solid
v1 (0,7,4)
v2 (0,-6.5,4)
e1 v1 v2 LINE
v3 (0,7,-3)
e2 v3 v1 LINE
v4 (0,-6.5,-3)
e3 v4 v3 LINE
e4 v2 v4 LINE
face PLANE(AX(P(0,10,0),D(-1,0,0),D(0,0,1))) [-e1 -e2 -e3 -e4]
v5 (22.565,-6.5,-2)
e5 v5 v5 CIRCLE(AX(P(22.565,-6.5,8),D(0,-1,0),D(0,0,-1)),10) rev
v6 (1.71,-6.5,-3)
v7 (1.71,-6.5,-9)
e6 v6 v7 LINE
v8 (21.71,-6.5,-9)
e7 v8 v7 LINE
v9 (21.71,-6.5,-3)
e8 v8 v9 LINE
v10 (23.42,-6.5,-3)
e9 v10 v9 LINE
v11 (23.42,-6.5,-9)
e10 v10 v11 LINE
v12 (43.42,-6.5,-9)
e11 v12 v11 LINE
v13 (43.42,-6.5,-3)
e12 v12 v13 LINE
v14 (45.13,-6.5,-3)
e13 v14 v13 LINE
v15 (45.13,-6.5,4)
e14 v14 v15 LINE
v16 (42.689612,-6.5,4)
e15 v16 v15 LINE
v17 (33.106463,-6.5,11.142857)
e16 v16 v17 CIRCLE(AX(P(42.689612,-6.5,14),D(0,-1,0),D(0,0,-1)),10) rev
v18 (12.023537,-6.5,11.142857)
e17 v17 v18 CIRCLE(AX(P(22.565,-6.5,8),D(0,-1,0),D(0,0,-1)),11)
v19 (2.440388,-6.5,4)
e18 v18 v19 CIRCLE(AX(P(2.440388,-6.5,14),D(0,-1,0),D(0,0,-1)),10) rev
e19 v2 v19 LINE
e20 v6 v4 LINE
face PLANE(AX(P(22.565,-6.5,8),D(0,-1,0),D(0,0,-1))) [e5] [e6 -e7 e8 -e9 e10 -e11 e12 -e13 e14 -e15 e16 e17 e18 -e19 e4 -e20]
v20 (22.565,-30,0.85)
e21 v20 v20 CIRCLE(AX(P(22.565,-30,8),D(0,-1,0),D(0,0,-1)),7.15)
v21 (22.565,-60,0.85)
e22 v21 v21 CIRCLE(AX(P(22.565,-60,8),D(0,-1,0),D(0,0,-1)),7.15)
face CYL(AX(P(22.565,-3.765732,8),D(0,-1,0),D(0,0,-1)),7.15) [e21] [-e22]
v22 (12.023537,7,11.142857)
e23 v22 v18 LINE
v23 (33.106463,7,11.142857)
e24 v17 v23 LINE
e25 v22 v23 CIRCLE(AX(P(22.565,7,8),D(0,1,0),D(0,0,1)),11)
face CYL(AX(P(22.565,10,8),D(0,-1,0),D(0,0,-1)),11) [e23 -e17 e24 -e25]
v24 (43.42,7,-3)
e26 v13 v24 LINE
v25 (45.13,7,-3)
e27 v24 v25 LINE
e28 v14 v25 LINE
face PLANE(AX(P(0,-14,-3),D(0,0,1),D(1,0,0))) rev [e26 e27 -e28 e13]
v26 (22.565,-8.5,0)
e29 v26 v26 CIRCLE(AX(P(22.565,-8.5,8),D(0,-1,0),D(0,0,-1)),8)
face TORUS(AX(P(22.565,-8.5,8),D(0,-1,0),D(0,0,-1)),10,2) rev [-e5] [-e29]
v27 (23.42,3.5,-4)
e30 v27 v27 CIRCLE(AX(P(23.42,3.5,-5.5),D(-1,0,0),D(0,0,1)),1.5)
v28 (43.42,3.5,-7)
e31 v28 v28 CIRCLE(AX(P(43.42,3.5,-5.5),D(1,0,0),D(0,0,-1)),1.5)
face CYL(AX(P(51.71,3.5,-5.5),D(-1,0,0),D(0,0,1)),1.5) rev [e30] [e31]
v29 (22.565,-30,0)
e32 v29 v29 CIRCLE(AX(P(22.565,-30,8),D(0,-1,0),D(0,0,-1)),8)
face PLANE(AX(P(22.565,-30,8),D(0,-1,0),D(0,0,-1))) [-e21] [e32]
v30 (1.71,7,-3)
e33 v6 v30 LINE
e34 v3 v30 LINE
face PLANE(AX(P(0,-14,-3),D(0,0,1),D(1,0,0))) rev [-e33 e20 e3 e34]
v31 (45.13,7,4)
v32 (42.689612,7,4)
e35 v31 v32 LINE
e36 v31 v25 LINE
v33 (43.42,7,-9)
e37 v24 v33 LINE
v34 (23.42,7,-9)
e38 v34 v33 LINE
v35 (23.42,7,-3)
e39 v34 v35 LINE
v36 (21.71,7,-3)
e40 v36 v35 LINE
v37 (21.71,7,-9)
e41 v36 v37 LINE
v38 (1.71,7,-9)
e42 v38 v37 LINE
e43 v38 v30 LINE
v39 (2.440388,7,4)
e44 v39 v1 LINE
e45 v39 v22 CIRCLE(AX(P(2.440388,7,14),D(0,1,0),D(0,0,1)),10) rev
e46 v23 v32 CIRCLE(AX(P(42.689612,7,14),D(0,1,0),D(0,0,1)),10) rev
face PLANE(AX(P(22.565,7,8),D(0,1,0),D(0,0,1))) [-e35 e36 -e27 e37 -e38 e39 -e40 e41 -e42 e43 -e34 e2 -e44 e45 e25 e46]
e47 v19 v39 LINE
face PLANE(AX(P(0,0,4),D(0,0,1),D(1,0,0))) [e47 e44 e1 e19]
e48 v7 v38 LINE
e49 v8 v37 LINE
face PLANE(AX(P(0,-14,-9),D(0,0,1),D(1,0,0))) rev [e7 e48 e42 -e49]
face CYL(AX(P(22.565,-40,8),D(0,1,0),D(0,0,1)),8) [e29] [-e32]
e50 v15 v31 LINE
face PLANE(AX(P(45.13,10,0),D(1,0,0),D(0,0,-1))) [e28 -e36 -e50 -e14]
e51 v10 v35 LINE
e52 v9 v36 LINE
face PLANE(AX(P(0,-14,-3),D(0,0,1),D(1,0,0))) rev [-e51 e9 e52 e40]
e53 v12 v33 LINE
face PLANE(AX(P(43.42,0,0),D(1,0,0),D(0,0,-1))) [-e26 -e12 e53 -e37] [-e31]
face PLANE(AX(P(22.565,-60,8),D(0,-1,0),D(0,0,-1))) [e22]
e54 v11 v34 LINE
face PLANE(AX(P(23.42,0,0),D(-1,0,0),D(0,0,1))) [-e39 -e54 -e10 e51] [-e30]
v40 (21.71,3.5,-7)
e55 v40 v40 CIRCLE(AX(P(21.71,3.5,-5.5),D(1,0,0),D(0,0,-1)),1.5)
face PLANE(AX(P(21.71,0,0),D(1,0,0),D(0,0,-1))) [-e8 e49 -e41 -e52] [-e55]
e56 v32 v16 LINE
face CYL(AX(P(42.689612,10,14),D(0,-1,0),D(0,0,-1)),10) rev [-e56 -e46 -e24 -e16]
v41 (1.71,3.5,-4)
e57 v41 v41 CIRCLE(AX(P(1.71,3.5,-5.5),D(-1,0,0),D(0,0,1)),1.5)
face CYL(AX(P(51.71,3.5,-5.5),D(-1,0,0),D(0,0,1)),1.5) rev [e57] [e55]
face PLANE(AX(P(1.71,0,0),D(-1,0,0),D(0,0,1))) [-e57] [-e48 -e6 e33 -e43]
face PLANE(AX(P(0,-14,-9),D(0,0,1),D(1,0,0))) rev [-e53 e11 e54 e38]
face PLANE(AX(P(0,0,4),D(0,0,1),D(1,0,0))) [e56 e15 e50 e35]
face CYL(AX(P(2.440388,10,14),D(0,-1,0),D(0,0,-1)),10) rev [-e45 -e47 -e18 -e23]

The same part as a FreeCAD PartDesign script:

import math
import FreeCAD as App
import Part
import Sketcher

V = App.Vector


def edges_at(feature, points):
    """Names of the edges that pass closest to the given points."""
    edges = feature.Shape.Edges
    near = lambda p: min(range(len(edges)), key=lambda i: edges[i].distToShape(Part.Vertex(*p))[0])
    return sorted({f"Edge{near(p) + 1}" for p in points})

doc = App.newDocument("Part")
body = doc.addObject("PartDesign::Body", "Body")

sketch1 = body.newObject("Sketcher::SketchObject", "Sketch")
sketch1.AttachmentSupport = (doc.getObject("XZ_Plane"), [""])
sketch1.MapMode = "FlatFace"
sketch1.addGeometry([
    Part.ArcOfCircle(Part.Circle(V(22.565, 8, 0), V(0, 0, 1), 11), math.radians(-46.658242), math.radians(226.658242)),
    Part.LineSegment(V(30.114834, 0, 0), V(45.13, 0, 0)),
    Part.LineSegment(V(45.13, 0, 0), V(45.13, -7, 0)),
    Part.LineSegment(V(45.13, -7, 0), V(0, -7, 0)),
    Part.LineSegment(V(0, -7, 0), V(0, 0, 0)),
    Part.LineSegment(V(0, 0, 0), V(15.015166, 0, 0)),
    Part.Circle(V(22.565, 8, 0), V(0, 0, 1), 8),
], False)
sketch1.addConstraint([
    Sketcher.Constraint("Coincident", 0, 1, 1, 1),
    Sketcher.Constraint("Coincident", 1, 2, 2, 1),
    Sketcher.Constraint("Coincident", 2, 2, 3, 1),
    Sketcher.Constraint("Coincident", 3, 2, 4, 1),
    Sketcher.Constraint("Coincident", 4, 2, 5, 1),
    Sketcher.Constraint("Coincident", 5, 2, 0, 2),
    Sketcher.Constraint("Horizontal", 1),
    Sketcher.Constraint("Vertical", 2),
    Sketcher.Constraint("Horizontal", 3),
    Sketcher.Constraint("Vertical", 4),
    Sketcher.Constraint("Horizontal", 5),
    Sketcher.Constraint("Coincident", 4, 2, -1, 1),
    Sketcher.Constraint("Coincident", 6, 3, 0, 3),
    Sketcher.Constraint("PointOnObject", 0, 1, -1),
    Sketcher.Constraint("Equal", 1, 5),
    Sketcher.Constraint("Diameter", 6, 16.0),
    Sketcher.Constraint("Radius", 0, 11.0),
    Sketcher.Constraint("DistanceY", 2, 2, 2, 1, 7.0),
    Sketcher.Constraint("DistanceY", -1, 1, 0, 3, 8.0),
    Sketcher.Constraint("DistanceX", 3, 2, 3, 1, 45.13),
])
pad1 = body.newObject("PartDesign::Pad", "Pad")
pad1.Profile = sketch1
pad1.Length = 10
pad1.Reversed = True

sketch2 = body.newObject("Sketcher::SketchObject", "Sketch001")
sketch2.AttachmentSupport = (doc.getObject("XZ_Plane"), [""])
sketch2.MapMode = "FlatFace"
sketch2.AttachmentOffset = App.Placement(V(0, 0, -10), App.Rotation())
sketch2.addGeometry([
    Part.LineSegment(V(0, -7, 0), V(0, -3, 0)),
    Part.LineSegment(V(0, -3, 0), V(1.71, -3, 0)),
    Part.LineSegment(V(1.71, -3, 0), V(1.71, -7, 0)),
    Part.LineSegment(V(1.71, -7, 0), V(0, -7, 0)),
    Part.LineSegment(V(21.71, -7, 0), V(21.71, -3, 0)),
    Part.LineSegment(V(21.71, -3, 0), V(23.42, -3, 0)),
    Part.LineSegment(V(23.42, -3, 0), V(23.42, -7, 0)),
    Part.LineSegment(V(23.42, -7, 0), V(21.71, -7, 0)),
    Part.LineSegment(V(43.42, -7, 0), V(43.42, -3, 0)),
    Part.LineSegment(V(43.42, -3, 0), V(45.13, -3, 0)),
    Part.LineSegment(V(45.13, -3, 0), V(45.13, -7, 0)),
    Part.LineSegment(V(45.13, -7, 0), V(43.42, -7, 0)),
], False)
sketch2.addConstraint([
    Sketcher.Constraint("Coincident", 0, 2, 1, 1),
    Sketcher.Constraint("Coincident", 1, 2, 2, 1),
    Sketcher.Constraint("Coincident", 2, 2, 3, 1),
    Sketcher.Constraint("Coincident", 3, 2, 0, 1),
    Sketcher.Constraint("Coincident", 4, 2, 5, 1),
    Sketcher.Constraint("Coincident", 5, 2, 6, 1),
    Sketcher.Constraint("Coincident", 6, 2, 7, 1),
    Sketcher.Constraint("Coincident", 7, 2, 4, 1),
    Sketcher.Constraint("Coincident", 8, 2, 9, 1),
    Sketcher.Constraint("Coincident", 9, 2, 10, 1),
    Sketcher.Constraint("Coincident", 10, 2, 11, 1),
    Sketcher.Constraint("Coincident", 11, 2, 8, 1),
    Sketcher.Constraint("Vertical", 0),
    Sketcher.Constraint("Horizontal", 1),
    Sketcher.Constraint("Vertical", 2),
    Sketcher.Constraint("Horizontal", 3),
    Sketcher.Constraint("Vertical", 4),
    Sketcher.Constraint("Horizontal", 5),
    Sketcher.Constraint("Vertical", 6),
    Sketcher.Constraint("Horizontal", 7),
    Sketcher.Constraint("Vertical", 8),
    Sketcher.Constraint("Horizontal", 9),
    Sketcher.Constraint("Vertical", 10),
    Sketcher.Constraint("Horizontal", 11),
    Sketcher.Constraint("PointOnObject", 0, 2, -2),
    Sketcher.Constraint("Horizontal", 1, 2, 4, 2),
    Sketcher.Constraint("Horizontal", 3, 2, 6, 2),
    Sketcher.Constraint("Horizontal", 5, 2, 8, 2),
    Sketcher.Constraint("Horizontal", 7, 2, 10, 2),
    Sketcher.Constraint("Equal", 3, 5),
    Sketcher.Constraint("Equal", 7, 9),
    Sketcher.Constraint("DistanceY", 0, 1, 0, 2, 4.0),
    Sketcher.Constraint("DistanceY", 0, 2, -1, 1, 3.0),
    Sketcher.Constraint("DistanceX", 1, 2, 4, 2, 20.0),
    Sketcher.Constraint("DistanceX", 5, 2, 8, 2, 20.0),
    Sketcher.Constraint("DistanceX", 1, 1, 1, 2, 1.71),
])
pocket1 = body.newObject("PartDesign::Pocket", "Pocket")
pocket1.Profile = sketch2
pocket1.Length = 10
pocket1.Reversed = True

sketch3 = body.newObject("Sketcher::SketchObject", "Sketch002")
sketch3.AttachmentSupport = (doc.getObject("XY_Plane"), [""])
sketch3.MapMode = "FlatFace"
sketch3.AttachmentOffset = App.Placement(V(0, 0, -7), App.Rotation())
sketch3.addGeometry([
    Part.LineSegment(V(43.42, 10, 0), V(43.42, 0, 0)),
    Part.LineSegment(V(43.42, 0, 0), V(23.42, 0, 0)),
    Part.LineSegment(V(23.42, 0, 0), V(23.42, 10, 0)),
    Part.LineSegment(V(23.42, 10, 0), V(43.42, 10, 0)),
    Part.LineSegment(V(21.71, 10, 0), V(21.71, 0, 0)),
    Part.LineSegment(V(21.71, 0, 0), V(1.71, 0, 0)),
    Part.LineSegment(V(1.71, 0, 0), V(1.71, 10, 0)),
    Part.LineSegment(V(1.71, 10, 0), V(21.71, 10, 0)),
], False)
sketch3.addConstraint([
    Sketcher.Constraint("Coincident", 0, 2, 1, 1),
    Sketcher.Constraint("Coincident", 1, 2, 2, 1),
    Sketcher.Constraint("Coincident", 2, 2, 3, 1),
    Sketcher.Constraint("Coincident", 3, 2, 0, 1),
    Sketcher.Constraint("Coincident", 4, 2, 5, 1),
    Sketcher.Constraint("Coincident", 5, 2, 6, 1),
    Sketcher.Constraint("Coincident", 6, 2, 7, 1),
    Sketcher.Constraint("Coincident", 7, 2, 4, 1),
    Sketcher.Constraint("Vertical", 0),
    Sketcher.Constraint("Horizontal", 1),
    Sketcher.Constraint("Vertical", 2),
    Sketcher.Constraint("Horizontal", 3),
    Sketcher.Constraint("Vertical", 4),
    Sketcher.Constraint("Horizontal", 5),
    Sketcher.Constraint("Vertical", 6),
    Sketcher.Constraint("Horizontal", 7),
    Sketcher.Constraint("PointOnObject", 0, 2, -1),
    Sketcher.Constraint("PointOnObject", 4, 2, -1),
    Sketcher.Constraint("Horizontal", 3, 2, 6, 2),
    Sketcher.Constraint("Equal", 3, 5),
    Sketcher.Constraint("DistanceX", 1, 2, 1, 1, 20.0),
    Sketcher.Constraint("DistanceY", 0, 2, 0, 1, 10.0),
    Sketcher.Constraint("DistanceX", -1, 1, 0, 2, 43.42),
    Sketcher.Constraint("DistanceX", -1, 1, 4, 2, 21.71),
])
pad2 = body.newObject("PartDesign::Pad", "Pad001")
pad2.Profile = sketch3
pad2.Length = 3
pad2.Reversed = True

sketch4 = body.newObject("Sketcher::SketchObject", "Sketch003")
sketch4.AttachmentSupport = (doc.getObject("XZ_Plane"), [""])
sketch4.MapMode = "FlatFace"
sketch4.AttachmentOffset = App.Placement(V(0, 0, -7), App.Rotation())
sketch4.addGeometry([
    Part.LineSegment(V(21.71, -3, 0), V(21.71, -10, 0)),
    Part.LineSegment(V(21.71, -10, 0), V(1.71, -10, 0)),
    Part.LineSegment(V(1.71, -10, 0), V(1.71, -3, 0)),
    Part.LineSegment(V(1.71, -3, 0), V(0, -3, 0)),
    Part.LineSegment(V(0, -3, 0), V(0, 0, 0)),
    Part.LineSegment(V(0, 0, 0), V(15.015166, 0, 0)),
    Part.ArcOfCircle(Part.Circle(V(22.565, 8, 0), V(0, 0, 1), 11), math.radians(-46.658242), math.radians(226.658242)),
    Part.LineSegment(V(30.114834, 0, 0), V(45.13, 0, 0)),
    Part.LineSegment(V(45.13, 0, 0), V(45.13, -3, 0)),
    Part.LineSegment(V(45.13, -3, 0), V(43.42, -3, 0)),
    Part.LineSegment(V(43.42, -3, 0), V(43.42, -10, 0)),
    Part.LineSegment(V(43.42, -10, 0), V(23.42, -10, 0)),
    Part.LineSegment(V(23.42, -10, 0), V(23.42, -3, 0)),
    Part.LineSegment(V(23.42, -3, 0), V(21.71, -3, 0)),
], False)
sketch4.addConstraint([
    Sketcher.Constraint("Coincident", 0, 2, 1, 1),
    Sketcher.Constraint("Coincident", 1, 2, 2, 1),
    Sketcher.Constraint("Coincident", 2, 2, 3, 1),
    Sketcher.Constraint("Coincident", 3, 2, 4, 1),
    Sketcher.Constraint("Coincident", 4, 2, 5, 1),
    Sketcher.Constraint("Coincident", 5, 2, 6, 2),
    Sketcher.Constraint("Coincident", 6, 1, 7, 1),
    Sketcher.Constraint("Coincident", 7, 2, 8, 1),
    Sketcher.Constraint("Coincident", 8, 2, 9, 1),
    Sketcher.Constraint("Coincident", 9, 2, 10, 1),
    Sketcher.Constraint("Coincident", 10, 2, 11, 1),
    Sketcher.Constraint("Coincident", 11, 2, 12, 1),
    Sketcher.Constraint("Coincident", 12, 2, 13, 1),
    Sketcher.Constraint("Coincident", 13, 2, 0, 1),
    Sketcher.Constraint("Vertical", 0),
    Sketcher.Constraint("Horizontal", 1),
    Sketcher.Constraint("Vertical", 2),
    Sketcher.Constraint("Horizontal", 3),
    Sketcher.Constraint("Vertical", 4),
    Sketcher.Constraint("Horizontal", 5),
    Sketcher.Constraint("Horizontal", 7),
    Sketcher.Constraint("Vertical", 8),
    Sketcher.Constraint("Horizontal", 9),
    Sketcher.Constraint("Vertical", 10),
    Sketcher.Constraint("Horizontal", 11),
    Sketcher.Constraint("Vertical", 12),
    Sketcher.Constraint("Horizontal", 13),
    Sketcher.Constraint("Coincident", 4, 2, -1, 1),
    Sketcher.Constraint("PointOnObject", 6, 1, -1),
    Sketcher.Constraint("Horizontal", 3, 2, 8, 2),
    Sketcher.Constraint("Horizontal", 1, 2, 10, 2),
    Sketcher.Constraint("Horizontal", 9, 2, 12, 2),
    Sketcher.Constraint("Equal", 5, 7),
    Sketcher.Constraint("Equal", 3, 9),
    Sketcher.Constraint("Equal", 1, 11),
    Sketcher.Constraint("Equal", 9, 13),
    Sketcher.Constraint("Radius", 6, 11.0),
    Sketcher.Constraint("DistanceX", 1, 2, 1, 1, 20.0),
    Sketcher.Constraint("DistanceY", 0, 2, 0, 1, 7.0),
    Sketcher.Constraint("DistanceY", 4, 1, 4, 2, 3.0),
    Sketcher.Constraint("DistanceY", -1, 1, 6, 3, 8.0),
    Sketcher.Constraint("DistanceX", 3, 2, 3, 1, 1.71),
])
pocket2 = body.newObject("PartDesign::Pocket", "Pocket001")
pocket2.Profile = sketch4
pocket2.Length = 3

sketch5 = body.newObject("Sketcher::SketchObject", "Sketch004")
sketch5.AttachmentSupport = (doc.getObject("XY_Plane"), [""])
sketch5.MapMode = "FlatFace"
sketch5.AttachmentOffset = App.Placement(V(0, 0, -10), App.Rotation())
sketch5.addGeometry([
    Part.LineSegment(V(43.42, 7, 0), V(43.42, 0, 0)),
    Part.LineSegment(V(43.42, 0, 0), V(23.42, 0, 0)),
    Part.LineSegment(V(23.42, 0, 0), V(23.42, 7, 0)),
    Part.LineSegment(V(23.42, 7, 0), V(43.42, 7, 0)),
    Part.LineSegment(V(21.71, 7, 0), V(21.71, 0, 0)),
    Part.LineSegment(V(21.71, 0, 0), V(1.71, 0, 0)),
    Part.LineSegment(V(1.71, 0, 0), V(1.71, 7, 0)),
    Part.LineSegment(V(1.71, 7, 0), V(21.71, 7, 0)),
], False)
sketch5.addConstraint([
    Sketcher.Constraint("Coincident", 0, 2, 1, 1),
    Sketcher.Constraint("Coincident", 1, 2, 2, 1),
    Sketcher.Constraint("Coincident", 2, 2, 3, 1),
    Sketcher.Constraint("Coincident", 3, 2, 0, 1),
    Sketcher.Constraint("Coincident", 4, 2, 5, 1),
    Sketcher.Constraint("Coincident", 5, 2, 6, 1),
    Sketcher.Constraint("Coincident", 6, 2, 7, 1),
    Sketcher.Constraint("Coincident", 7, 2, 4, 1),
    Sketcher.Constraint("Vertical", 0),
    Sketcher.Constraint("Horizontal", 1),
    Sketcher.Constraint("Vertical", 2),
    Sketcher.Constraint("Horizontal", 3),
    Sketcher.Constraint("Vertical", 4),
    Sketcher.Constraint("Horizontal", 5),
    Sketcher.Constraint("Vertical", 6),
    Sketcher.Constraint("Horizontal", 7),
    Sketcher.Constraint("PointOnObject", 0, 2, -1),
    Sketcher.Constraint("PointOnObject", 4, 2, -1),
    Sketcher.Constraint("Horizontal", 3, 2, 6, 2),
    Sketcher.Constraint("Equal", 3, 5),
    Sketcher.Constraint("DistanceX", 1, 2, 1, 1, 20.0),
    Sketcher.Constraint("DistanceY", 0, 2, 0, 1, 7.0),
    Sketcher.Constraint("DistanceX", -1, 1, 0, 2, 43.42),
    Sketcher.Constraint("DistanceX", -1, 1, 4, 2, 21.71),
])
pad3 = body.newObject("PartDesign::Pad", "Pad002")
pad3.Profile = sketch5
pad3.Length = 2
pad3.Reversed = True

sketch6 = body.newObject("Sketcher::SketchObject", "Sketch005")
sketch6.AttachmentSupport = (doc.getObject("YZ_Plane"), [""])
sketch6.MapMode = "FlatFace"
sketch6.AttachmentOffset = App.Placement(V(0, 0, 1.71), App.Rotation())
sketch6.addGeometry(Part.Circle(V(3.5, -8.5, 0), V(0, 0, 1), 1.5), False)
sketch6.addConstraint([
    Sketcher.Constraint("Diameter", 0, 3.0),
    Sketcher.Constraint("DistanceX", -1, 1, 0, 3, 3.5),
    Sketcher.Constraint("DistanceY", 0, 3, -1, 1, 8.5),
])
pocket3 = body.newObject("PartDesign::Pocket", "Pocket002")
pocket3.Profile = sketch6
pocket3.Length = 44
pocket3.Reversed = True

sketch7 = body.newObject("Sketcher::SketchObject", "Sketch006")
sketch7.AttachmentSupport = (doc.getObject("XY_Plane"), [""])
sketch7.MapMode = "FlatFace"
sketch7.AttachmentOffset = App.Placement(V(0, 0, -3), App.Rotation())
sketch7.addGeometry([
    Part.LineSegment(V(23.42, 7, 0), V(23.42, 0, 0)),
    Part.LineSegment(V(23.42, 0, 0), V(21.71, 0, 0)),
    Part.LineSegment(V(21.71, 0, 0), V(21.71, 7, 0)),
    Part.LineSegment(V(21.71, 7, 0), V(23.42, 7, 0)),
    Part.LineSegment(V(1.71, 7, 0), V(1.71, 0, 0)),
    Part.LineSegment(V(1.71, 0, 0), V(0, 0, 0)),
    Part.LineSegment(V(0, 0, 0), V(0, 7, 0)),
    Part.LineSegment(V(0, 7, 0), V(1.71, 7, 0)),
    Part.LineSegment(V(45.13, 7, 0), V(45.13, 0, 0)),
    Part.LineSegment(V(45.13, 0, 0), V(43.42, 0, 0)),
    Part.LineSegment(V(43.42, 0, 0), V(43.42, 7, 0)),
    Part.LineSegment(V(43.42, 7, 0), V(45.13, 7, 0)),
], False)
sketch7.addConstraint([
    Sketcher.Constraint("Coincident", 0, 2, 1, 1),
    Sketcher.Constraint("Coincident", 1, 2, 2, 1),
    Sketcher.Constraint("Coincident", 2, 2, 3, 1),
    Sketcher.Constraint("Coincident", 3, 2, 0, 1),
    Sketcher.Constraint("Coincident", 4, 2, 5, 1),
    Sketcher.Constraint("Coincident", 5, 2, 6, 1),
    Sketcher.Constraint("Coincident", 6, 2, 7, 1),
    Sketcher.Constraint("Coincident", 7, 2, 4, 1),
    Sketcher.Constraint("Coincident", 8, 2, 9, 1),
    Sketcher.Constraint("Coincident", 9, 2, 10, 1),
    Sketcher.Constraint("Coincident", 10, 2, 11, 1),
    Sketcher.Constraint("Coincident", 11, 2, 8, 1),
    Sketcher.Constraint("Vertical", 0),
    Sketcher.Constraint("Horizontal", 1),
    Sketcher.Constraint("Vertical", 2),
    Sketcher.Constraint("Horizontal", 3),
    Sketcher.Constraint("Vertical", 4),
    Sketcher.Constraint("Horizontal", 5),
    Sketcher.Constraint("Vertical", 6),
    Sketcher.Constraint("Horizontal", 7),
    Sketcher.Constraint("Vertical", 8),
    Sketcher.Constraint("Horizontal", 9),
    Sketcher.Constraint("Vertical", 10),
    Sketcher.Constraint("Horizontal", 11),
    Sketcher.Constraint("Coincident", 5, 2, -1, 1),
    Sketcher.Constraint("PointOnObject", 0, 2, -1),
    Sketcher.Constraint("PointOnObject", 8, 2, -1),
    Sketcher.Constraint("Horizontal", 3, 2, 6, 2),
    Sketcher.Constraint("Horizontal", 7, 2, 10, 2),
    Sketcher.Constraint("Equal", 3, 5),
    Sketcher.Constraint("Equal", 7, 9),
    Sketcher.Constraint("DistanceY", 0, 2, 0, 1, 7.0),
    Sketcher.Constraint("DistanceX", 4, 2, 1, 2, 20.0),
    Sketcher.Constraint("DistanceX", 0, 2, 9, 2, 20.0),
    Sketcher.Constraint("DistanceX", 1, 2, 1, 1, 1.71),
])
pad4 = body.newObject("PartDesign::Pad", "Pad003")
pad4.Profile = sketch7
pad4.Length = 3
pad4.Reversed = True

sketch8 = body.newObject("Sketcher::SketchObject", "Sketch007")
sketch8.AttachmentSupport = (doc.getObject("XZ_Plane"), [""])
sketch8.MapMode = "FlatFace"
sketch8.AttachmentOffset = App.Placement(V(0, 0, -6), App.Rotation())
sketch8.addGeometry([
    Part.LineSegment(V(45.13, -6, 0), V(43.42, -6, 0)),
    Part.LineSegment(V(43.42, -6, 0), V(43.42, -12, 0)),
    Part.LineSegment(V(43.42, -12, 0), V(23.42, -12, 0)),
    Part.LineSegment(V(23.42, -12, 0), V(23.42, -6, 0)),
    Part.LineSegment(V(23.42, -6, 0), V(21.71, -6, 0)),
    Part.LineSegment(V(21.71, -6, 0), V(21.71, -12, 0)),
    Part.LineSegment(V(21.71, -12, 0), V(1.71, -12, 0)),
    Part.LineSegment(V(1.71, -12, 0), V(1.71, -6, 0)),
    Part.LineSegment(V(1.71, -6, 0), V(0, -6, 0)),
    Part.LineSegment(V(0, -6, 0), V(0, 0, 0)),
    Part.LineSegment(V(0, 0, 0), V(15.015166, 0, 0)),
    Part.ArcOfCircle(Part.Circle(V(22.565, 8, 0), V(0, 0, 1), 11), math.radians(-46.658242), math.radians(226.658242)),
    Part.LineSegment(V(30.114834, 0, 0), V(45.13, 0, 0)),
    Part.LineSegment(V(45.13, 0, 0), V(45.13, -6, 0)),
    Part.Circle(V(22.565, 8, 0), V(0, 0, 1), 8),
], False)
sketch8.addConstraint([
    Sketcher.Constraint("Coincident", 0, 2, 1, 1),
    Sketcher.Constraint("Coincident", 1, 2, 2, 1),
    Sketcher.Constraint("Coincident", 2, 2, 3, 1),
    Sketcher.Constraint("Coincident", 3, 2, 4, 1),
    Sketcher.Constraint("Coincident", 4, 2, 5, 1),
    Sketcher.Constraint("Coincident", 5, 2, 6, 1),
    Sketcher.Constraint("Coincident", 6, 2, 7, 1),
    Sketcher.Constraint("Coincident", 7, 2, 8, 1),
    Sketcher.Constraint("Coincident", 8, 2, 9, 1),
    Sketcher.Constraint("Coincident", 9, 2, 10, 1),
    Sketcher.Constraint("Coincident", 10, 2, 11, 2),
    Sketcher.Constraint("Coincident", 11, 1, 12, 1),
    Sketcher.Constraint("Coincident", 12, 2, 13, 1),
    Sketcher.Constraint("Coincident", 13, 2, 0, 1),
    Sketcher.Constraint("Horizontal", 0),
    Sketcher.Constraint("Vertical", 1),
    Sketcher.Constraint("Horizontal", 2),
    Sketcher.Constraint("Vertical", 3),
    Sketcher.Constraint("Horizontal", 4),
    Sketcher.Constraint("Vertical", 5),
    Sketcher.Constraint("Horizontal", 6),
    Sketcher.Constraint("Vertical", 7),
    Sketcher.Constraint("Horizontal", 8),
    Sketcher.Constraint("Vertical", 9),
    Sketcher.Constraint("Horizontal", 10),
    Sketcher.Constraint("Horizontal", 12),
    Sketcher.Constraint("Vertical", 13),
    Sketcher.Constraint("Coincident", 9, 2, -1, 1),
    Sketcher.Constraint("Coincident", 14, 3, 11, 3),
    Sketcher.Constraint("PointOnObject", 11, 1, -1),
    Sketcher.Constraint("Horizontal", 0, 2, 3, 2),
    Sketcher.Constraint("Horizontal", 2, 2, 5, 2),
    Sketcher.Constraint("Horizontal", 4, 2, 7, 2),
    Sketcher.Constraint("Equal", 0, 4),
    Sketcher.Constraint("Equal", 2, 6),
    Sketcher.Constraint("Equal", 4, 8),
    Sketcher.Constraint("Equal", 10, 12),
    Sketcher.Constraint("Equal", 7, 9),
    Sketcher.Constraint("Diameter", 14, 16.0),
    Sketcher.Constraint("Radius", 11, 11.0),
    Sketcher.Constraint("DistanceX", 2, 2, 2, 1, 20.0),
    Sketcher.Constraint("DistanceY", 1, 2, 1, 1, 6.0),
    Sketcher.Constraint("DistanceY", -1, 1, 11, 3, 8.0),
    Sketcher.Constraint("DistanceX", 0, 2, 0, 1, 1.71),
])
pocket4 = body.newObject("PartDesign::Pocket", "Pocket003")
pocket4.Profile = sketch8
pocket4.Length = 1

sketch9 = body.newObject("Sketcher::SketchObject", "Sketch008")
sketch9.AttachmentSupport = (doc.getObject("XZ_Plane"), [""])
sketch9.MapMode = "FlatFace"
sketch9.AttachmentOffset = App.Placement(V(0, 0, -6), App.Rotation())
sketch9.addGeometry([
    Part.LineSegment(V(45.13, 0, 0), V(45.13, -6, 0)),
    Part.LineSegment(V(45.13, -6, 0), V(43.42, -6, 0)),
    Part.LineSegment(V(43.42, -6, 0), V(43.42, -12, 0)),
    Part.LineSegment(V(43.42, -12, 0), V(23.42, -12, 0)),
    Part.LineSegment(V(23.42, -12, 0), V(23.42, -6, 0)),
    Part.LineSegment(V(23.42, -6, 0), V(21.71, -6, 0)),
    Part.LineSegment(V(21.71, -6, 0), V(21.71, -12, 0)),
    Part.LineSegment(V(21.71, -12, 0), V(1.71, -12, 0)),
    Part.LineSegment(V(1.71, -12, 0), V(1.71, -6, 0)),
    Part.LineSegment(V(1.71, -6, 0), V(0, -6, 0)),
    Part.LineSegment(V(0, -6, 0), V(0, 0, 0)),
    Part.LineSegment(V(0, 0, 0), V(15.015166, 0, 0)),
    Part.ArcOfCircle(Part.Circle(V(22.565, 8, 0), V(0, 0, 1), 11), math.radians(-46.658242), math.radians(226.658242)),
    Part.LineSegment(V(30.114834, 0, 0), V(45.13, 0, 0)),
], False)
sketch9.addConstraint([
    Sketcher.Constraint("Coincident", 0, 2, 1, 1),
    Sketcher.Constraint("Coincident", 1, 2, 2, 1),
    Sketcher.Constraint("Coincident", 2, 2, 3, 1),
    Sketcher.Constraint("Coincident", 3, 2, 4, 1),
    Sketcher.Constraint("Coincident", 4, 2, 5, 1),
    Sketcher.Constraint("Coincident", 5, 2, 6, 1),
    Sketcher.Constraint("Coincident", 6, 2, 7, 1),
    Sketcher.Constraint("Coincident", 7, 2, 8, 1),
    Sketcher.Constraint("Coincident", 8, 2, 9, 1),
    Sketcher.Constraint("Coincident", 9, 2, 10, 1),
    Sketcher.Constraint("Coincident", 10, 2, 11, 1),
    Sketcher.Constraint("Coincident", 11, 2, 12, 2),
    Sketcher.Constraint("Coincident", 12, 1, 13, 1),
    Sketcher.Constraint("Coincident", 13, 2, 0, 1),
    Sketcher.Constraint("Vertical", 0),
    Sketcher.Constraint("Horizontal", 1),
    Sketcher.Constraint("Vertical", 2),
    Sketcher.Constraint("Horizontal", 3),
    Sketcher.Constraint("Vertical", 4),
    Sketcher.Constraint("Horizontal", 5),
    Sketcher.Constraint("Vertical", 6),
    Sketcher.Constraint("Horizontal", 7),
    Sketcher.Constraint("Vertical", 8),
    Sketcher.Constraint("Horizontal", 9),
    Sketcher.Constraint("Vertical", 10),
    Sketcher.Constraint("Horizontal", 11),
    Sketcher.Constraint("Horizontal", 13),
    Sketcher.Constraint("Coincident", 10, 2, -1, 1),
    Sketcher.Constraint("PointOnObject", 12, 1, -1),
    Sketcher.Constraint("Horizontal", 1, 2, 4, 2),
    Sketcher.Constraint("Horizontal", 3, 2, 6, 2),
    Sketcher.Constraint("Horizontal", 5, 2, 8, 2),
    Sketcher.Constraint("Equal", 1, 5),
    Sketcher.Constraint("Equal", 3, 7),
    Sketcher.Constraint("Equal", 5, 9),
    Sketcher.Constraint("Equal", 11, 13),
    Sketcher.Constraint("Equal", 0, 2),
    Sketcher.Constraint("Radius", 12, 11.0),
    Sketcher.Constraint("DistanceX", 3, 2, 3, 1, 20.0),
    Sketcher.Constraint("DistanceY", 0, 2, 0, 1, 6.0),
    Sketcher.Constraint("DistanceY", -1, 1, 12, 3, 8.0),
    Sketcher.Constraint("DistanceX", 1, 2, 1, 1, 1.71),
])
pad5 = body.newObject("PartDesign::Pad", "Pad004")
pad5.Profile = sketch9
pad5.Length = 1
pad5.Reversed = True

sketch10 = body.newObject("Sketcher::SketchObject", "Sketch009")
sketch10.AttachmentSupport = (doc.getObject("XZ_Plane"), [""])
sketch10.MapMode = "FlatFace"
sketch10.addGeometry(Part.Circle(V(22.565, 8, 0), V(0, 0, 1), 8), False)
sketch10.addConstraint([
    Sketcher.Constraint("Diameter", 0, 16.0),
    Sketcher.Constraint("DistanceY", -1, 1, 0, 3, 8.0),
    Sketcher.Constraint("DistanceX", -1, 1, 0, 3, 22.565),
])
pad6 = body.newObject("PartDesign::Pad", "Pad005")
pad6.Profile = sketch10
pad6.Length = 6
pad6.Reversed = True

sketch11 = body.newObject("Sketcher::SketchObject", "Sketch010")
sketch11.AttachmentSupport = (doc.getObject("XZ_Plane"), [""])
sketch11.MapMode = "FlatFace"
sketch11.addGeometry(Part.Circle(V(22.565, 8, 0), V(0, 0, 1), 8), False)
sketch11.addConstraint([
    Sketcher.Constraint("Diameter", 0, 16.0),
    Sketcher.Constraint("DistanceY", -1, 1, 0, 3, 8.0),
    Sketcher.Constraint("DistanceX", -1, 1, 0, 3, 22.565),
])
pad7 = body.newObject("PartDesign::Pad", "Pad006")
pad7.Profile = sketch11
pad7.Length = 40

sketch12 = body.newObject("Sketcher::SketchObject", "Sketch011")
sketch12.AttachmentSupport = (doc.getObject("XZ_Plane"), [""])
sketch12.MapMode = "FlatFace"
sketch12.AttachmentOffset = App.Placement(V(0, 0, 40), App.Rotation())
sketch12.addGeometry(Part.Circle(V(22.565, 8, 0), V(0, 0, 1), 7.5), False)
sketch12.addConstraint([
    Sketcher.Constraint("Diameter", 0, 15.0),
    Sketcher.Constraint("DistanceY", -1, 1, 0, 3, 8.0),
    Sketcher.Constraint("DistanceX", -1, 1, 0, 3, 22.565),
])
pad8 = body.newObject("PartDesign::Pad", "Pad007")
pad8.Profile = sketch12
pad8.Length = 30

sketch13 = body.newObject("Sketcher::SketchObject", "Sketch012")
sketch13.AttachmentSupport = (doc.getObject("XZ_Plane"), [""])
sketch13.MapMode = "FlatFace"
sketch13.AttachmentOffset = App.Placement(V(0, 0, 6.5), App.Rotation())
sketch13.addGeometry([
    Part.LineSegment(V(43.42, -12, 0), V(43.42, -6, 0)),
    Part.LineSegment(V(43.42, -6, 0), V(45.13, -6, 0)),
    Part.LineSegment(V(45.13, -6, 0), V(45.13, 0, 0)),
    Part.LineSegment(V(45.13, 0, 0), V(30.114834, 0, 0)),
    Part.ArcOfCircle(Part.Circle(V(22.565, 8, 0), V(0, 0, 1), 11), math.radians(-46.658242), math.radians(226.658242)),
    Part.LineSegment(V(15.015166, 0, 0), V(0, 0, 0)),
    Part.LineSegment(V(0, 0, 0), V(0, -6, 0)),
    Part.LineSegment(V(0, -6, 0), V(1.71, -6, 0)),
    Part.LineSegment(V(1.71, -6, 0), V(1.71, -12, 0)),
    Part.LineSegment(V(1.71, -12, 0), V(21.71, -12, 0)),
    Part.LineSegment(V(21.71, -12, 0), V(21.71, -6, 0)),
    Part.LineSegment(V(21.71, -6, 0), V(23.42, -6, 0)),
    Part.LineSegment(V(23.42, -6, 0), V(23.42, -12, 0)),
    Part.LineSegment(V(23.42, -12, 0), V(43.42, -12, 0)),
], False)
sketch13.addConstraint([
    Sketcher.Constraint("Coincident", 0, 2, 1, 1),
    Sketcher.Constraint("Coincident", 1, 2, 2, 1),
    Sketcher.Constraint("Coincident", 2, 2, 3, 1),
    Sketcher.Constraint("Coincident", 3, 2, 4, 1),
    Sketcher.Constraint("Coincident", 4, 2, 5, 1),
    Sketcher.Constraint("Coincident", 5, 2, 6, 1),
    Sketcher.Constraint("Coincident", 6, 2, 7, 1),
    Sketcher.Constraint("Coincident", 7, 2, 8, 1),
    Sketcher.Constraint("Coincident", 8, 2, 9, 1),
    Sketcher.Constraint("Coincident", 9, 2, 10, 1),
    Sketcher.Constraint("Coincident", 10, 2, 11, 1),
    Sketcher.Constraint("Coincident", 11, 2, 12, 1),
    Sketcher.Constraint("Coincident", 12, 2, 13, 1),
    Sketcher.Constraint("Coincident", 13, 2, 0, 1),
    Sketcher.Constraint("Vertical", 0),
    Sketcher.Constraint("Horizontal", 1),
    Sketcher.Constraint("Vertical", 2),
    Sketcher.Constraint("Horizontal", 3),
    Sketcher.Constraint("Horizontal", 5),
    Sketcher.Constraint("Vertical", 6),
    Sketcher.Constraint("Horizontal", 7),
    Sketcher.Constraint("Vertical", 8),
    Sketcher.Constraint("Horizontal", 9),
    Sketcher.Constraint("Vertical", 10),
    Sketcher.Constraint("Horizontal", 11),
    Sketcher.Constraint("Vertical", 12),
    Sketcher.Constraint("Horizontal", 13),
    Sketcher.Constraint("Coincident", 5, 2, -1, 1),
    Sketcher.Constraint("PointOnObject", 2, 2, -1),
    Sketcher.Constraint("Horizontal", 1, 2, 6, 2),
    Sketcher.Constraint("Horizontal", 7, 2, 10, 2),
    Sketcher.Constraint("Horizontal", 9, 2, 12, 2),
    Sketcher.Constraint("Equal", 3, 5),
    Sketcher.Constraint("Equal", 1, 7),
    Sketcher.Constraint("Equal", 7, 11),
    Sketcher.Constraint("Equal", 9, 13),
    Sketcher.Constraint("Equal", 0, 2),
    Sketcher.Constraint("Radius", 4, 11.0),
    Sketcher.Constraint("DistanceX", 9, 1, 9, 2, 20.0),
    Sketcher.Constraint("DistanceY", 0, 1, 0, 2, 6.0),
    Sketcher.Constraint("DistanceY", -1, 1, 4, 3, 8.0),
    Sketcher.Constraint("DistanceX", 1, 1, 1, 2, 1.71),
])
pad9 = body.newObject("PartDesign::Pad", "Pad008")
pad9.Profile = sketch13
pad9.Length = 6.5
pad9.Reversed = True

sketch14 = body.newObject("Sketcher::SketchObject", "Sketch013")
sketch14.AttachmentSupport = (doc.getObject("XZ_Plane"), [""])
sketch14.MapMode = "FlatFace"
sketch14.AttachmentOffset = App.Placement(V(0, 0, 70), App.Rotation())
sketch14.addGeometry([
    Part.Circle(V(22.565, 8, 0), V(0, 0, 1), 15.773419),
    Part.Circle(V(22.565, 8, 0), V(0, 0, 1), 7),
], False)
sketch14.addConstraint([
    Sketcher.Constraint("Coincident", 1, 3, 0, 3),
    Sketcher.Constraint("Diameter", 1, 14.0),
    Sketcher.Constraint("DistanceY", -1, 1, 0, 3, 8.0),
    Sketcher.Constraint("Diameter", 0, 31.546838),
    Sketcher.Constraint("DistanceX", -1, 1, 0, 3, 22.565),
])
pocket5 = body.newObject("PartDesign::Pocket", "Pocket004")
pocket5.Profile = sketch14
pocket5.Length = 30

sketch15 = body.newObject("Sketcher::SketchObject", "Sketch014")
sketch15.AttachmentSupport = (doc.getObject("XZ_Plane"), [""])
sketch15.MapMode = "FlatFace"
sketch15.AttachmentOffset = App.Placement(V(0, 0, 70), App.Rotation())
sketch15.addGeometry(Part.Circle(V(22.565, 8, 0), V(0, 0, 1), 7.1), False)
sketch15.addConstraint([
    Sketcher.Constraint("Diameter", 0, 14.2),
    Sketcher.Constraint("DistanceY", -1, 1, 0, 3, 8.0),
    Sketcher.Constraint("DistanceX", -1, 1, 0, 3, 22.565),
])
pad10 = body.newObject("PartDesign::Pad", "Pad009")
pad10.Profile = sketch15
pad10.Length = 30
pad10.Reversed = True

sketch16 = body.newObject("Sketcher::SketchObject", "Sketch015")
sketch16.AttachmentSupport = (doc.getObject("XZ_Plane"), [""])
sketch16.MapMode = "FlatFace"
sketch16.AttachmentOffset = App.Placement(V(0, 0, 70), App.Rotation())
sketch16.addGeometry(Part.Circle(V(22.565, 8, 0), V(0, 0, 1), 7.2), False)
sketch16.addConstraint([
    Sketcher.Constraint("Diameter", 0, 14.4),
    Sketcher.Constraint("DistanceY", -1, 1, 0, 3, 8.0),
    Sketcher.Constraint("DistanceX", -1, 1, 0, 3, 22.565),
])
pad11 = body.newObject("PartDesign::Pad", "Pad010")
pad11.Profile = sketch16
pad11.Length = 30
pad11.Reversed = True

sketch17 = body.newObject("Sketcher::SketchObject", "Sketch016")
sketch17.AttachmentSupport = (doc.getObject("XZ_Plane"), [""])
sketch17.MapMode = "FlatFace"
sketch17.AttachmentOffset = App.Placement(V(0, 0, 70), App.Rotation())
sketch17.addGeometry([
    Part.Circle(V(22.565, 8, 0), V(0, 0, 1), 12.810748),
    Part.Circle(V(22.565, 8, 0), V(0, 0, 1), 7.15),
], False)
sketch17.addConstraint([
    Sketcher.Constraint("Coincident", 1, 3, 0, 3),
    Sketcher.Constraint("Diameter", 1, 14.3),
    Sketcher.Constraint("DistanceY", -1, 1, 0, 3, 8.0),
    Sketcher.Constraint("Diameter", 0, 25.621496),
    Sketcher.Constraint("DistanceX", -1, 1, 0, 3, 22.565),
])
pocket6 = body.newObject("PartDesign::Pocket", "Pocket005")
pocket6.Profile = sketch17
pocket6.Length = 30

sketch18 = body.newObject("Sketcher::SketchObject", "Sketch017")
sketch18.AttachmentSupport = (doc.getObject("XZ_Plane"), [""])
sketch18.MapMode = "FlatFace"
sketch18.AttachmentOffset = App.Placement(V(0, 0, 70), App.Rotation())
sketch18.addGeometry(Part.Circle(V(22.565, 8, 0), V(0, 0, 1), 7.15), False)
sketch18.addConstraint([
    Sketcher.Constraint("Diameter", 0, 14.3),
    Sketcher.Constraint("DistanceY", -1, 1, 0, 3, 8.0),
    Sketcher.Constraint("DistanceX", -1, 1, 0, 3, 22.565),
])
pocket7 = body.newObject("PartDesign::Pocket", "Pocket006")
pocket7.Profile = sketch18
pocket7.Length = 10

sketch19 = body.newObject("Sketcher::SketchObject", "Sketch018")
sketch19.AttachmentSupport = (doc.getObject("XZ_Plane"), [""])
sketch19.MapMode = "FlatFace"
sketch19.AttachmentOffset = App.Placement(V(0, 0, 40), App.Rotation())
sketch19.addGeometry([
    Part.Circle(V(22.565, 8, 0), V(0, 0, 1), 8),
    Part.Circle(V(22.565, 8, 0), V(0, 0, 1), 7.15),
], False)
sketch19.addConstraint([
    Sketcher.Constraint("Coincident", 1, 3, 0, 3),
    Sketcher.Constraint("Diameter", 0, 16.0),
    Sketcher.Constraint("Diameter", 1, 14.3),
    Sketcher.Constraint("DistanceY", -1, 1, 0, 3, 8.0),
    Sketcher.Constraint("DistanceX", -1, 1, 0, 3, 22.565),
])
pocket8 = body.newObject("PartDesign::Pocket", "Pocket007")
pocket8.Profile = sketch19
pocket8.Length = 10

sketch20 = body.newObject("Sketcher::SketchObject", "Sketch019")
sketch20.AttachmentSupport = (doc.getObject("XZ_Plane"), [""])
sketch20.MapMode = "FlatFace"
sketch20.AttachmentOffset = App.Placement(V(0, 0, -7), App.Rotation())
sketch20.addGeometry([
    Part.LineSegment(V(0, -6, 0), V(0, -3, 0)),
    Part.LineSegment(V(0, -3, 0), V(1.71, -3, 0)),
    Part.LineSegment(V(1.71, -3, 0), V(1.71, -6, 0)),
    Part.LineSegment(V(1.71, -6, 0), V(0, -6, 0)),
    Part.LineSegment(V(1.71, -12, 0), V(1.71, -9, 0)),
    Part.LineSegment(V(1.71, -9, 0), V(21.71, -9, 0)),
    Part.LineSegment(V(21.71, -9, 0), V(21.71, -12, 0)),
    Part.LineSegment(V(21.71, -12, 0), V(1.71, -12, 0)),
    Part.LineSegment(V(23.42, -12, 0), V(23.42, -9, 0)),
    Part.LineSegment(V(23.42, -9, 0), V(43.42, -9, 0)),
    Part.LineSegment(V(43.42, -9, 0), V(43.42, -12, 0)),
    Part.LineSegment(V(43.42, -12, 0), V(23.42, -12, 0)),
    Part.LineSegment(V(21.71, -6, 0), V(21.71, -3, 0)),
    Part.LineSegment(V(21.71, -3, 0), V(23.42, -3, 0)),
    Part.LineSegment(V(23.42, -3, 0), V(23.42, -6, 0)),
    Part.LineSegment(V(23.42, -6, 0), V(21.71, -6, 0)),
    Part.LineSegment(V(43.42, -6, 0), V(43.42, -3, 0)),
    Part.LineSegment(V(43.42, -3, 0), V(45.13, -3, 0)),
    Part.LineSegment(V(45.13, -3, 0), V(45.13, -6, 0)),
    Part.LineSegment(V(45.13, -6, 0), V(43.42, -6, 0)),
], False)
sketch20.addConstraint([
    Sketcher.Constraint("Coincident", 0, 2, 1, 1),
    Sketcher.Constraint("Coincident", 1, 2, 2, 1),
    Sketcher.Constraint("Coincident", 2, 2, 3, 1),
    Sketcher.Constraint("Coincident", 3, 2, 0, 1),
    Sketcher.Constraint("Coincident", 4, 2, 5, 1),
    Sketcher.Constraint("Coincident", 5, 2, 6, 1),
    Sketcher.Constraint("Coincident", 6, 2, 7, 1),
    Sketcher.Constraint("Coincident", 7, 2, 4, 1),
    Sketcher.Constraint("Coincident", 8, 2, 9, 1),
    Sketcher.Constraint("Coincident", 9, 2, 10, 1),
    Sketcher.Constraint("Coincident", 10, 2, 11, 1),
    Sketcher.Constraint("Coincident", 11, 2, 8, 1),
    Sketcher.Constraint("Coincident", 12, 2, 13, 1),
    Sketcher.Constraint("Coincident", 13, 2, 14, 1),
    Sketcher.Constraint("Coincident", 14, 2, 15, 1),
    Sketcher.Constraint("Coincident", 15, 2, 12, 1),
    Sketcher.Constraint("Coincident", 16, 2, 17, 1),
    Sketcher.Constraint("Coincident", 17, 2, 18, 1),
    Sketcher.Constraint("Coincident", 18, 2, 19, 1),
    Sketcher.Constraint("Coincident", 19, 2, 16, 1),
    Sketcher.Constraint("Vertical", 0),
    Sketcher.Constraint("Horizontal", 1),
    Sketcher.Constraint("Vertical", 2),
    Sketcher.Constraint("Horizontal", 3),
    Sketcher.Constraint("Vertical", 4),
    Sketcher.Constraint("Horizontal", 5),
    Sketcher.Constraint("Vertical", 6),
    Sketcher.Constraint("Horizontal", 7),
    Sketcher.Constraint("Vertical", 8),
    Sketcher.Constraint("Horizontal", 9),
    Sketcher.Constraint("Vertical", 10),
    Sketcher.Constraint("Horizontal", 11),
    Sketcher.Constraint("Vertical", 12),
    Sketcher.Constraint("Horizontal", 13),
    Sketcher.Constraint("Vertical", 14),
    Sketcher.Constraint("Horizontal", 15),
    Sketcher.Constraint("Vertical", 16),
    Sketcher.Constraint("Horizontal", 17),
    Sketcher.Constraint("Vertical", 18),
    Sketcher.Constraint("Horizontal", 19),
    Sketcher.Constraint("PointOnObject", 0, 2, -2),
    Sketcher.Constraint("Horizontal", 5, 2, 8, 2),
    Sketcher.Constraint("Horizontal", 7, 2, 10, 2),
    Sketcher.Constraint("Horizontal", 1, 2, 12, 2),
    Sketcher.Constraint("Horizontal", 3, 2, 14, 2),
    Sketcher.Constraint("Horizontal", 13, 2, 16, 2),
    Sketcher.Constraint("Horizontal", 15, 2, 18, 2),
    Sketcher.Constraint("Vertical", 2, 2, 4, 2),
    Sketcher.Constraint("Vertical", 6, 2, 12, 2),
    Sketcher.Constraint("Vertical", 11, 2, 13, 2),
    Sketcher.Constraint("Vertical", 10, 2, 16, 2),
    Sketcher.Constraint("Equal", 7, 9),
    Sketcher.Constraint("Equal", 3, 13),
    Sketcher.Constraint("Equal", 15, 17),
    Sketcher.Constraint("Equal", 2, 4),
    Sketcher.Constraint("DistanceX", 5, 1, 5, 2, 20.0),
    Sketcher.Constraint("DistanceY", 0, 1, 0, 2, 3.0),
    Sketcher.Constraint("DistanceY", 0, 2, -1, 1, 3.0),
    Sketcher.Constraint("DistanceY", 4, 2, -1, 1, 9.0),
    Sketcher.Constraint("DistanceX", 1, 1, 1, 2, 1.71),
])
pocket9 = body.newObject("PartDesign::Pocket", "Pocket008")
pocket9.Profile = sketch20
pocket9.Length = 21
pocket9.Reversed = True

sketch21 = body.newObject("Sketcher::SketchObject", "Sketch020")
sketch21.AttachmentSupport = (doc.getObject("YZ_Plane"), [""])
sketch21.MapMode = "FlatFace"
sketch21.AttachmentOffset = App.Placement(V(0, 0, 1.71), App.Rotation())
sketch21.addGeometry([
    Part.ArcOfCircle(Part.Circle(V(3.5, -8.5, 0), V(0, 0, 1), 1.5), math.radians(-19.471221), math.radians(90)),
    Part.LineSegment(V(4.914214, -9, 0), V(2.085786, -9, 0)),
    Part.ArcOfCircle(Part.Circle(V(3.5, -8.5, 0), V(0, 0, 1), 1.5), math.radians(90), math.radians(199.471221)),
], False)
sketch21.addConstraint([
    Sketcher.Constraint("Coincident", 0, 1, 1, 1),
    Sketcher.Constraint("Coincident", 1, 2, 2, 2),
    Sketcher.Constraint("Tangent", 2, 1, 0, 2),
    Sketcher.Constraint("Horizontal", 1),
    Sketcher.Constraint("Equal", 0, 2),
    Sketcher.Constraint("Vertical", 0, 3, 2, 1),
    Sketcher.Constraint("Radius", 0, 1.5),
    Sketcher.Constraint("DistanceY", 0, 1, -1, 1, 9.0),
    Sketcher.Constraint("DistanceY", 2, 1, -1, 1, 7.0),
    Sketcher.Constraint("DistanceX", -1, 1, 0, 3, 3.5),
])
pad12 = body.newObject("PartDesign::Pad", "Pad011")
pad12.Profile = sketch21
pad12.Length = 20

sketch22 = body.newObject("Sketcher::SketchObject", "Sketch021")
sketch22.AttachmentSupport = (doc.getObject("YZ_Plane"), [""])
sketch22.MapMode = "FlatFace"
sketch22.AttachmentOffset = App.Placement(V(0, 0, 23.42), App.Rotation())
sketch22.addGeometry([
    Part.LineSegment(V(2.085786, -9, 0), V(4.914214, -9, 0)),
    Part.ArcOfCircle(Part.Circle(V(3.5, -8.5, 0), V(0, 0, 1), 1.5), math.radians(-19.471221), math.radians(199.471221)),
], False)
sketch22.addConstraint([
    Sketcher.Constraint("Coincident", 0, 1, 1, 2),
    Sketcher.Constraint("Coincident", 1, 1, 0, 2),
    Sketcher.Constraint("Horizontal", 0),
    Sketcher.Constraint("Radius", 1, 1.5),
    Sketcher.Constraint("DistanceY", 0, 1, -1, 1, 9.0),
    Sketcher.Constraint("DistanceX", -1, 1, 1, 3, 3.5),
    Sketcher.Constraint("DistanceY", 1, 3, -1, 1, 8.5),
])
pad13 = body.newObject("PartDesign::Pad", "Pad012")
pad13.Profile = sketch22
pad13.Length = 20

sketch23 = body.newObject("Sketcher::SketchObject", "Sketch022")
sketch23.AttachmentSupport = (doc.getObject("YZ_Plane"), [""])
sketch23.MapMode = "FlatFace"
sketch23.AttachmentOffset = App.Placement(V(0, 0, 1.71), App.Rotation())
sketch23.addGeometry(Part.Circle(V(3.5, -5.5, 0), V(0, 0, 1), 1.5), False)
sketch23.addConstraint([
    Sketcher.Constraint("Diameter", 0, 3.0),
    Sketcher.Constraint("DistanceX", -1, 1, 0, 3, 3.5),
    Sketcher.Constraint("DistanceY", 0, 3, -1, 1, 5.5),
])
pocket10 = body.newObject("PartDesign::Pocket", "Pocket009")
pocket10.Profile = sketch23
pocket10.Length = 50
pocket10.Reversed = True

sketch24 = body.newObject("Sketcher::SketchObject", "Sketch023")
sketch24.AttachmentSupport = (doc.getObject("XY_Plane"), [""])
sketch24.MapMode = "FlatFace"
sketch24.addGeometry([
    Part.LineSegment(V(0, 7, 0), V(0, -6.5, 0)),
    Part.LineSegment(V(0, -6.5, 0), V(45.13, -6.5, 0)),
    Part.LineSegment(V(45.13, -6.5, 0), V(45.13, 7, 0)),
    Part.LineSegment(V(45.13, 7, 0), V(0, 7, 0)),
], False)
sketch24.addConstraint([
    Sketcher.Constraint("Coincident", 0, 2, 1, 1),
    Sketcher.Constraint("Coincident", 1, 2, 2, 1),
    Sketcher.Constraint("Coincident", 2, 2, 3, 1),
    Sketcher.Constraint("Coincident", 3, 2, 0, 1),
    Sketcher.Constraint("Vertical", 0),
    Sketcher.Constraint("Horizontal", 1),
    Sketcher.Constraint("Vertical", 2),
    Sketcher.Constraint("Horizontal", 3),
    Sketcher.Constraint("PointOnObject", 0, 2, -2),
    Sketcher.Constraint("DistanceY", 0, 2, 0, 1, 13.5),
    Sketcher.Constraint("DistanceY", -1, 1, 2, 2, 7.0),
    Sketcher.Constraint("DistanceX", 1, 1, 1, 2, 45.13),
])
pad14 = body.newObject("PartDesign::Pad", "Pad013")
pad14.Profile = sketch24
pad14.Length = 4
doc.recompute()

fillet = body.newObject("PartDesign::Fillet", "Fillet")
fillet.Base = (pad14, edges_at(pad14, [(32.812, 3.5, 4), (12.318, 3.5, 4)]))
fillet.Radius = 10
doc.recompute()

fillet2 = body.newObject("PartDesign::Fillet", "Fillet001")
fillet2.Base = (fillet, edges_at(fillet, [(22.565, -6.5, 0)]))
fillet2.Radius = 2

doc.recompute()
